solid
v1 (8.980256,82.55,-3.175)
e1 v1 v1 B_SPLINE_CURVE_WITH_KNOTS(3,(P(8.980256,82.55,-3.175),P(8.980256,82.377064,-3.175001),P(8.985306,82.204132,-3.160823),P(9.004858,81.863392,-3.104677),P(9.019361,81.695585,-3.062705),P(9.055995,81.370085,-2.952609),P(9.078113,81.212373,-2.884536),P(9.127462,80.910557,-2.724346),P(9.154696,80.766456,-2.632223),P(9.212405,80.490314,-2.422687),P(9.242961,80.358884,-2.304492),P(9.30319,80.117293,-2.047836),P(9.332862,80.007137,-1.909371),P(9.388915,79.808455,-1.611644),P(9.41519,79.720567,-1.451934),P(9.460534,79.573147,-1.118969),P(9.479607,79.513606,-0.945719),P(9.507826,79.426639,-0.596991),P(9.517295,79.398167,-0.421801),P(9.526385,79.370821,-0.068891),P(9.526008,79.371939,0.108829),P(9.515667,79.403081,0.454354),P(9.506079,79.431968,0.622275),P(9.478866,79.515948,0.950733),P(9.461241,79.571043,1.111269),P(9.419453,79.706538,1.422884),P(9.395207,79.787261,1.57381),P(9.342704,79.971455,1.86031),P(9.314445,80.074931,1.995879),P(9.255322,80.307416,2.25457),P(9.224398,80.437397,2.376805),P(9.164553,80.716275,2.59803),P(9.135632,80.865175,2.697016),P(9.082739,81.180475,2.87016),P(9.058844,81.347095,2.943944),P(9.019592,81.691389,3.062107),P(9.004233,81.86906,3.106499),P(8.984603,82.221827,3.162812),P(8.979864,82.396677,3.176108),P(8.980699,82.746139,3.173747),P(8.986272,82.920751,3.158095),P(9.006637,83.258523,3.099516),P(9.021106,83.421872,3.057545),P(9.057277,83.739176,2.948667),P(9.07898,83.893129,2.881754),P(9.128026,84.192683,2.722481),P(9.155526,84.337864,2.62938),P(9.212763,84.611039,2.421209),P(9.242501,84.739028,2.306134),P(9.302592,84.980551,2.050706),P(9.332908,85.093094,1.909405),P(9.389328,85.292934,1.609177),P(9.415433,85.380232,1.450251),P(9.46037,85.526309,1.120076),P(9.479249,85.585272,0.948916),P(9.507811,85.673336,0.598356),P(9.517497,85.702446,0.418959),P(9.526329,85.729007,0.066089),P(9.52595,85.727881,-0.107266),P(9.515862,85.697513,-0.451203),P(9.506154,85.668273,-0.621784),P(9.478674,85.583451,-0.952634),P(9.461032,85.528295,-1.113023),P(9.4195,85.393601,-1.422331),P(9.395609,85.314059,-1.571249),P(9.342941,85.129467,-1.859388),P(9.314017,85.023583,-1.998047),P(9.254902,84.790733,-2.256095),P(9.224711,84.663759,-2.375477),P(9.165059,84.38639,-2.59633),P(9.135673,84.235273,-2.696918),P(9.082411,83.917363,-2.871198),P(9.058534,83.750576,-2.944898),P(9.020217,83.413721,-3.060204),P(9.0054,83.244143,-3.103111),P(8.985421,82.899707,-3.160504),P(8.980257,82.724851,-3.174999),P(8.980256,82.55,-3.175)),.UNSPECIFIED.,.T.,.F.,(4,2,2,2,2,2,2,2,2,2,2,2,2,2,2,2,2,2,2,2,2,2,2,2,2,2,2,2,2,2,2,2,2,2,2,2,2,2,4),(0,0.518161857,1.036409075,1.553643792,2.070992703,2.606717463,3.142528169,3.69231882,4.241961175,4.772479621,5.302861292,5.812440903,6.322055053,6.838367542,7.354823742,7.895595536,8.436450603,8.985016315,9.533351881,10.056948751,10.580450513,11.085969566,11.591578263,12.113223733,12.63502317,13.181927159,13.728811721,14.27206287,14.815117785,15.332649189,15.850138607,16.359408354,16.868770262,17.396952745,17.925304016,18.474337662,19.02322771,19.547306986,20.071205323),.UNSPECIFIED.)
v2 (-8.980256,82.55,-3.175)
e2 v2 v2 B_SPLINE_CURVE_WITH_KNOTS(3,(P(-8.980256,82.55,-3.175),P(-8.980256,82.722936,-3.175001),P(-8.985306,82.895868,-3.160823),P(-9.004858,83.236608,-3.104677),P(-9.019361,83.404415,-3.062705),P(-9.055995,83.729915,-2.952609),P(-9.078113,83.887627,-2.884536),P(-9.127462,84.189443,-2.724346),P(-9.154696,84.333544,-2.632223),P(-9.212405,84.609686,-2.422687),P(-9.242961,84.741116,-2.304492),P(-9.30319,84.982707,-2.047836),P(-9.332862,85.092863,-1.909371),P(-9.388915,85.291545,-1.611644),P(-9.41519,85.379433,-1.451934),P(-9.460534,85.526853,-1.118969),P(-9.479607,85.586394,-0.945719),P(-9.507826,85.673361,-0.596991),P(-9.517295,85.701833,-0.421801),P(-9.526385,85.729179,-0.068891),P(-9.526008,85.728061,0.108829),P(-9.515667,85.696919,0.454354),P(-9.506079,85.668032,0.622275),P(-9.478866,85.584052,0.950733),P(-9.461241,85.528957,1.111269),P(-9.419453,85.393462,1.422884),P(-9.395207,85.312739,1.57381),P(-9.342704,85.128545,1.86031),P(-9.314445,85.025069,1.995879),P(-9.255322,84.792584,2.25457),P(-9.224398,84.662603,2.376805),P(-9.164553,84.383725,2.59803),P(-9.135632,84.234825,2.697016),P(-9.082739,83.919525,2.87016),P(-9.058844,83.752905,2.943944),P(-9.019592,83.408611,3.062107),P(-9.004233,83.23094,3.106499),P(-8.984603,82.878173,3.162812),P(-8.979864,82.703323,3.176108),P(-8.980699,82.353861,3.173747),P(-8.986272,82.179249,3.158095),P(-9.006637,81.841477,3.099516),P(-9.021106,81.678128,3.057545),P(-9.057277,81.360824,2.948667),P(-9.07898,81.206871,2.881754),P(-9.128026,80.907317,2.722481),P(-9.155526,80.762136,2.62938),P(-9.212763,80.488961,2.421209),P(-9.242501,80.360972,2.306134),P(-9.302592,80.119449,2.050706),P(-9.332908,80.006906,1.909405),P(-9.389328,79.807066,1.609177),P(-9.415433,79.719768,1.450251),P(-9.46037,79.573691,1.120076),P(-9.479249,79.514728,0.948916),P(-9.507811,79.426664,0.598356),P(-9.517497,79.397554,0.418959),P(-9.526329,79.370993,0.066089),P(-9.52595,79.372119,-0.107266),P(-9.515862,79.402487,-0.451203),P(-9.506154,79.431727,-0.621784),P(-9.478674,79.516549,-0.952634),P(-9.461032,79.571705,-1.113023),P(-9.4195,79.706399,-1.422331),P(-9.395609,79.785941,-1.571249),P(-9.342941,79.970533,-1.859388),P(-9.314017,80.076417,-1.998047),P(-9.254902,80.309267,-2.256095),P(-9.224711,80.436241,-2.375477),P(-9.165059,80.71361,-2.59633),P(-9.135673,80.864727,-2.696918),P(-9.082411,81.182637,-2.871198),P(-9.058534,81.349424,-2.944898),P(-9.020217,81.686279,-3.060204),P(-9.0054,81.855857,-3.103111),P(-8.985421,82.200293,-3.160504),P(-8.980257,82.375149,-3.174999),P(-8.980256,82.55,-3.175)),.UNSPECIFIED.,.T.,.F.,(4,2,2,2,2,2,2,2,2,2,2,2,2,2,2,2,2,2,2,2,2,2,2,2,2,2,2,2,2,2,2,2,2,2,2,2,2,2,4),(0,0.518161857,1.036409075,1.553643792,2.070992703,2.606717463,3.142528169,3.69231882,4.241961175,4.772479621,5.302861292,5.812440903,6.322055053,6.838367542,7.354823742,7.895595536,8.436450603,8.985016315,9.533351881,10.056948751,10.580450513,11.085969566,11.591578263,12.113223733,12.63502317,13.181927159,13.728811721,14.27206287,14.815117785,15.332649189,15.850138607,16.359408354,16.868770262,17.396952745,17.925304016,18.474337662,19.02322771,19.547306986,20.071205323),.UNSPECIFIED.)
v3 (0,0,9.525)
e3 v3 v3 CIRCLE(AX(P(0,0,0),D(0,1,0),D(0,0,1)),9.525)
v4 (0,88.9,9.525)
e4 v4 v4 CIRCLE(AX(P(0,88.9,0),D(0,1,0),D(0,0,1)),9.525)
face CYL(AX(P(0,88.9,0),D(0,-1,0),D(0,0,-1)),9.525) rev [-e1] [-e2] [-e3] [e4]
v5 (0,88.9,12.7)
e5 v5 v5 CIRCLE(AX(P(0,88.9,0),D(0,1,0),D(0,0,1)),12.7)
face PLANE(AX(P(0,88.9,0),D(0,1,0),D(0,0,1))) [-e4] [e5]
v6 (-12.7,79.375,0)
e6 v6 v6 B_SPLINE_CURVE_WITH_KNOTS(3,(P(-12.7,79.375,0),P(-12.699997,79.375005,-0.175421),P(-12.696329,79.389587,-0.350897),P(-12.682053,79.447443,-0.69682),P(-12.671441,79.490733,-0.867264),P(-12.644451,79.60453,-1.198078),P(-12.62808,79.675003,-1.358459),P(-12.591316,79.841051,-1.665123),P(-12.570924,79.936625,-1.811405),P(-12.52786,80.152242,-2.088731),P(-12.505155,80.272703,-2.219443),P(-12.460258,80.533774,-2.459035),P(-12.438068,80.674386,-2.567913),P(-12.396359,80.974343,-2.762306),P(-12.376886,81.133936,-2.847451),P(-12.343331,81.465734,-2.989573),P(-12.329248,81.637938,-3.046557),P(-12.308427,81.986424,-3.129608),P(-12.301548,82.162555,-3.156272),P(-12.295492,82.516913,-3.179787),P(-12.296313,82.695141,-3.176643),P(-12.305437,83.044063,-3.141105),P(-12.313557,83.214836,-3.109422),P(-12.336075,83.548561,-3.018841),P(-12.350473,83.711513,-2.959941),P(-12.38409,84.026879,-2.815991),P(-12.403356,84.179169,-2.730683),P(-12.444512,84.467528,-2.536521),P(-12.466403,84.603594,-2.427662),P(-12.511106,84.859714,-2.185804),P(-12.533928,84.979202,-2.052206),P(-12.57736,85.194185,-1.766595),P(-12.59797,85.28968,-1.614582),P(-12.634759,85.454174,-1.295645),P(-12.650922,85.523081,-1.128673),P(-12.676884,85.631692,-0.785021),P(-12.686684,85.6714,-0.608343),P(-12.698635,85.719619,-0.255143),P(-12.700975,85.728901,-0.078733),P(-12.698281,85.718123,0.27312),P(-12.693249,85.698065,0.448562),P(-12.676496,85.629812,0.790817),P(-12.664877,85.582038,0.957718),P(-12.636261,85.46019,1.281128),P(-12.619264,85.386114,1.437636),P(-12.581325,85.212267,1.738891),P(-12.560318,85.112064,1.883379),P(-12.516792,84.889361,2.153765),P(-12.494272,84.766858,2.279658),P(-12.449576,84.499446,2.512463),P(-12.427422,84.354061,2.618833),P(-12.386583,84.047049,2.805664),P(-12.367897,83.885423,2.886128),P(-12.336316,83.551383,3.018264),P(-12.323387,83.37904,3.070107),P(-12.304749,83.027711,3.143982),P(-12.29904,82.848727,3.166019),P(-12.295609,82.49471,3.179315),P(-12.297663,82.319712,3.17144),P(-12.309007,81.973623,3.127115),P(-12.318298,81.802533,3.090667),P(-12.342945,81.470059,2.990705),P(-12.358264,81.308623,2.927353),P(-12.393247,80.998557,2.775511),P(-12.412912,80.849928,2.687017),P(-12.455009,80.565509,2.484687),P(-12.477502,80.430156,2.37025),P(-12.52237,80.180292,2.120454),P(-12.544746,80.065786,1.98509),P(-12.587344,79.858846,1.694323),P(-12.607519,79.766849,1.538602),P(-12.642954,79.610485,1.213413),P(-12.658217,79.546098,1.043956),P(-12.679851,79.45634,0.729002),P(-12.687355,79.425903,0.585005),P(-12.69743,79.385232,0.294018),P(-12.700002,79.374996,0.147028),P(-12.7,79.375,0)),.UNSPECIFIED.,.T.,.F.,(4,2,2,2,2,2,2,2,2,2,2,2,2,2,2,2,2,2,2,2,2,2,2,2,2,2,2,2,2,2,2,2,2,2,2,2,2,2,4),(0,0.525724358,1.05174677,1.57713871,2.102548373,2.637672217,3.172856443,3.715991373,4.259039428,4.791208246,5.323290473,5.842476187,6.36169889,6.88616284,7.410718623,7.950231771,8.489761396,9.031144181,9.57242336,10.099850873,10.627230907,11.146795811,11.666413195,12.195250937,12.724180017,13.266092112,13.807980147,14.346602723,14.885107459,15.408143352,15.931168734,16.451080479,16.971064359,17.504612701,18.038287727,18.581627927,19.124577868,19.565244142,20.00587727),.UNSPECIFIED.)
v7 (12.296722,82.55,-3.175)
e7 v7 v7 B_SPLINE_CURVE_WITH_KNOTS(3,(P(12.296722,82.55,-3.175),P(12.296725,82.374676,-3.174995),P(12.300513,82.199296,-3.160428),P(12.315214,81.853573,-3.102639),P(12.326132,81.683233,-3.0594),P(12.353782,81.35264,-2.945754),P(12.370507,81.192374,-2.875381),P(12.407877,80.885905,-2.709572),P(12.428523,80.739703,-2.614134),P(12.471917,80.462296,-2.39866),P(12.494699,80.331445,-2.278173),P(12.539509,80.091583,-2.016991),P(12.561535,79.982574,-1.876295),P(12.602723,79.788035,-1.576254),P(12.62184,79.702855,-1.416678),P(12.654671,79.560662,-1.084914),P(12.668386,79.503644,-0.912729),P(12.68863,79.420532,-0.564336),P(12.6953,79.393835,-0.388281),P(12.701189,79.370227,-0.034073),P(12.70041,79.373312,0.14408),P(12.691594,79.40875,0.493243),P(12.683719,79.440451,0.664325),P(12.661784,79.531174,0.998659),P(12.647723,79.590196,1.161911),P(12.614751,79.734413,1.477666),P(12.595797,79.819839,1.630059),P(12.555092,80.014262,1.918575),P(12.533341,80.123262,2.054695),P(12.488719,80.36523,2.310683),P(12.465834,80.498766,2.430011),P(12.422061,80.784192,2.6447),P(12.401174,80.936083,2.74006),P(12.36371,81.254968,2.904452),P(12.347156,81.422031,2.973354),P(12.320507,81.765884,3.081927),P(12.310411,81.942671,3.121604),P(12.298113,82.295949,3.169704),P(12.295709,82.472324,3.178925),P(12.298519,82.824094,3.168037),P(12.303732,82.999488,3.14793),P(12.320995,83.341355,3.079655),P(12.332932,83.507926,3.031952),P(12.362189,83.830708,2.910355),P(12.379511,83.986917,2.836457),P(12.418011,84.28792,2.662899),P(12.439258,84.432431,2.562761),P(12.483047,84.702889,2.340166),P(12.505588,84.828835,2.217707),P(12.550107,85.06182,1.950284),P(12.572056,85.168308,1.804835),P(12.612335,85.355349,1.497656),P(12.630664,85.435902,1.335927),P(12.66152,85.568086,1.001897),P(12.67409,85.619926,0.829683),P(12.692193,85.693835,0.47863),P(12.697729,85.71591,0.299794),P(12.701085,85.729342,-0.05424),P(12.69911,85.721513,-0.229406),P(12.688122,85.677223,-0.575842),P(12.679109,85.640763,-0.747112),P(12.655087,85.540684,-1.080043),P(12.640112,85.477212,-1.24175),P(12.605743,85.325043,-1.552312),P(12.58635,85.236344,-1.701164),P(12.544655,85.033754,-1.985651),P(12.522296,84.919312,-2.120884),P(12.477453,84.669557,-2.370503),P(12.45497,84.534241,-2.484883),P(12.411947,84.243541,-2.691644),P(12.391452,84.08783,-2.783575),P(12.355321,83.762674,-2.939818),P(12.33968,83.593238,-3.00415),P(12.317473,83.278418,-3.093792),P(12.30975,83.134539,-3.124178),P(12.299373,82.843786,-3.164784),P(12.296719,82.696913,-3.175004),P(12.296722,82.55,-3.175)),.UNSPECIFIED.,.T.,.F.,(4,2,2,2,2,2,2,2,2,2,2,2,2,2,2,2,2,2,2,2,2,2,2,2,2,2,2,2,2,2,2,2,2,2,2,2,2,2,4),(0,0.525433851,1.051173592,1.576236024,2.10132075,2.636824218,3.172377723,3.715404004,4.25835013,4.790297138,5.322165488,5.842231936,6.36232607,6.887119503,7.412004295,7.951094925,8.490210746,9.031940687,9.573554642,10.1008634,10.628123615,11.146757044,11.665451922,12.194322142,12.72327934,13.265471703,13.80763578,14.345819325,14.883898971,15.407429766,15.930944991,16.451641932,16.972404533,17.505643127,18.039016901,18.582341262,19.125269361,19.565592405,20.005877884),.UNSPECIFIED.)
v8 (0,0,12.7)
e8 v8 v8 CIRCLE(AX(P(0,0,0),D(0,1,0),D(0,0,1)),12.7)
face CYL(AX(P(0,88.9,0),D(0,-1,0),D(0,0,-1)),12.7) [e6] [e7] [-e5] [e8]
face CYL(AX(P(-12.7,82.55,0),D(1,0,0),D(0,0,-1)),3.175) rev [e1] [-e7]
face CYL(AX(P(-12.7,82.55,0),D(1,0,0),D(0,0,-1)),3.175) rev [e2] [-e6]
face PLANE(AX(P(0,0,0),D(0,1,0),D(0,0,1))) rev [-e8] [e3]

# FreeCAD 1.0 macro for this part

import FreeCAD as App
import Part
import Sketcher
from FreeCAD import Vector
Q = App.Units.Quantity

doc = App.newDocument("Part")
body = doc.addObject("PartDesign::Body", "Body")

sketch1 = body.newObject("Sketcher::SketchObject", "Sketch")
sketch1.AttachmentSupport = (doc.getObject("XZ_Plane"), [""])
sketch1.MapMode = "FlatFace"
sketch1.addGeometry(Part.Circle(Vector(0, 0, 0), Vector(0, 0, 1), 12.7), False)
sketch1.addGeometry(Part.Circle(Vector(0, 0, 0), Vector(0, 0, 1), 9.525), False)
sketch1.addConstraint(Sketcher.Constraint("Coincident", 0, 3, -1, 1))
sketch1.addConstraint(Sketcher.Constraint("Coincident", 1, 3, -1, 1))
sketch1.addConstraint(Sketcher.Constraint("Diameter", 0, Q("1 in")))
sketch1.addConstraint(Sketcher.Constraint("Diameter", 1, Q("0.75 in")))
pad1 = body.newObject("PartDesign::Pad", "Pad")
pad1.Profile = sketch1
pad1.Length = Q("3.5 in")
pad1.Reversed = True

sketch2 = body.newObject("Sketcher::SketchObject", "Sketch001")
sketch2.AttachmentSupport = (doc.getObject("YZ_Plane"), [""])
sketch2.MapMode = "FlatFace"
sketch2.addGeometry(Part.Circle(Vector(82.55, 0, 0), Vector(0, 0, 1), 3.175), False)
sketch2.addConstraint(Sketcher.Constraint("PointOnObject", 0, 3, -1))
sketch2.addConstraint(Sketcher.Constraint("Diameter", 0, Q("0.25 in")))
sketch2.addConstraint(Sketcher.Constraint("DistanceX", -1, 1, 0, 3, Q("3.25 in")))
pocket1 = body.newObject("PartDesign::Pocket", "Pocket")
pocket1.Profile = sketch2
pocket1.Type = "ThroughAll"
pocket1.Midplane = True

doc.recompute()
